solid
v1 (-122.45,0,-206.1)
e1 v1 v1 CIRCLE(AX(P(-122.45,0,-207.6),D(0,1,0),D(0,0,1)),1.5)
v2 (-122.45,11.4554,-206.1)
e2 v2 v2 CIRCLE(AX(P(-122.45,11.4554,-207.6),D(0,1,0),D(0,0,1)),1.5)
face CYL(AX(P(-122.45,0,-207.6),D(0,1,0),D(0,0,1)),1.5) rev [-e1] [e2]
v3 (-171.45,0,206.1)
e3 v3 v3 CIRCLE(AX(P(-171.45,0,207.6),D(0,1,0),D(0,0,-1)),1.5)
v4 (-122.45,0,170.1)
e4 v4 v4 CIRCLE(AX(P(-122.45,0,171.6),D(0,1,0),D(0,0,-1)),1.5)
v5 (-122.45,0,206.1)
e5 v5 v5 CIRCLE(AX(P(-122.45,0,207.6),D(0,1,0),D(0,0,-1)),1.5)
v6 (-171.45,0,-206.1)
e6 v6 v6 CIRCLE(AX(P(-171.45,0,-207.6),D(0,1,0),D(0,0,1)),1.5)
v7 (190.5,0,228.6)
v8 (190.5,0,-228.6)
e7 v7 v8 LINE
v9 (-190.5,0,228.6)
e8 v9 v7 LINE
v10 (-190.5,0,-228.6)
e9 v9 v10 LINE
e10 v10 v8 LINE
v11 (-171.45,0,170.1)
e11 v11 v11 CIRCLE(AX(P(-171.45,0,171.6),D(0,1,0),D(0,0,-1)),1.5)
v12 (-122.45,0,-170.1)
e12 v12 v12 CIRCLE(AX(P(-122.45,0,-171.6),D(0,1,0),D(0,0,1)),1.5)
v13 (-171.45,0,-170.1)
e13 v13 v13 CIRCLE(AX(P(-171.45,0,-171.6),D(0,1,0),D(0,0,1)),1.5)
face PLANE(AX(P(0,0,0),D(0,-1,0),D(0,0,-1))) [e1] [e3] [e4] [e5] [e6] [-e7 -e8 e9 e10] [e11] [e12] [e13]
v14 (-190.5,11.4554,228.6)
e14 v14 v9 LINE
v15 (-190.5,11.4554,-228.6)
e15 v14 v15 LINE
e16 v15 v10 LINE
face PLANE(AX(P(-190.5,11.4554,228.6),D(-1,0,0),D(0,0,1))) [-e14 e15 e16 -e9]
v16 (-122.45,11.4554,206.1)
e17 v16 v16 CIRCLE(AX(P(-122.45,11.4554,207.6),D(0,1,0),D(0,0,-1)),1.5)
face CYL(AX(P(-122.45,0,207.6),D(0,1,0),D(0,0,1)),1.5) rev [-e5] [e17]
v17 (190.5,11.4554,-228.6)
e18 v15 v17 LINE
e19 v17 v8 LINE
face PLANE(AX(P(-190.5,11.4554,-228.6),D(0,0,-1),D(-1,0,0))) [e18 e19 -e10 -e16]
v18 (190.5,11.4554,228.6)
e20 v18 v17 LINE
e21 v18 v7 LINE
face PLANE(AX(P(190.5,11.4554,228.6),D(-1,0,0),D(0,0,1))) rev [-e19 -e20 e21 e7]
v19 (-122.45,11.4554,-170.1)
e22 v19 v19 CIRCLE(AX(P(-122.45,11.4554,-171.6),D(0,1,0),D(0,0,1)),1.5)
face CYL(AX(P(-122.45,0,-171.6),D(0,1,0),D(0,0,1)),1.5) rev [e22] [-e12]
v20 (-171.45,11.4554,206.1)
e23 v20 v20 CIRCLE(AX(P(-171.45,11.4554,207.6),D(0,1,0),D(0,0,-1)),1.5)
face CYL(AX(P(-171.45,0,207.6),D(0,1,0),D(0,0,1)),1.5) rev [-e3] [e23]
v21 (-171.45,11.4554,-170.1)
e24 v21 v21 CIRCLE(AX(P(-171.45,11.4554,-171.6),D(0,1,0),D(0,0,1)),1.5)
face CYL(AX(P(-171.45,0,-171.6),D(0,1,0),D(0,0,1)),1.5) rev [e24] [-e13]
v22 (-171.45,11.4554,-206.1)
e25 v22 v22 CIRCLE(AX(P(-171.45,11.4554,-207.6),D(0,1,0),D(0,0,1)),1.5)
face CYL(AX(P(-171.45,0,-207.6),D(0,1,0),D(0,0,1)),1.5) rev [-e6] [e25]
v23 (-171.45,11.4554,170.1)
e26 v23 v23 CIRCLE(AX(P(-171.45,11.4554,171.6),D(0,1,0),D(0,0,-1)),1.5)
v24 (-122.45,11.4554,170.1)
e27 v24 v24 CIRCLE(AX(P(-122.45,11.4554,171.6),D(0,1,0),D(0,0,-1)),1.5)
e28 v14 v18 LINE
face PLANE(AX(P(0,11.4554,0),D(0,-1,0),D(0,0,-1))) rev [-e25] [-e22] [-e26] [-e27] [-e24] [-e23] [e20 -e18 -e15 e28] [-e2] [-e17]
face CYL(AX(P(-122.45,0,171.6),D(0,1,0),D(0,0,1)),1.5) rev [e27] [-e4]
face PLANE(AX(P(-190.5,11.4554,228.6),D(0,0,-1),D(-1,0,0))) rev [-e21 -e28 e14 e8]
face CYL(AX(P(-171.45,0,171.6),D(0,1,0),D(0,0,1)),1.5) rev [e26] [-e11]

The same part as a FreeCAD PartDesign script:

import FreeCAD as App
import Part
import Sketcher

V = App.Vector
Q = App.Units.Quantity


def add_polygon(sketch, points):
    """Adds a closed chain of lines whose ends are joined by coincident constraints."""
    first, n = sketch.GeometryCount, len(points)
    for a, b in zip(points, points[1:] + points[:1]):
        sketch.addGeometry(Part.LineSegment(App.Vector(*a, 0), App.Vector(*b, 0)), False)
    for i in range(n):
        sketch.addConstraint(Sketcher.Constraint("Coincident", first + i, 2, first + (i + 1) % n, 1))

doc = App.newDocument("Part")
params = doc.addObject("Spreadsheet::Sheet", "Params")
for row, (alias, value) in enumerate([
    ("sketch1_width", "15 in"),
    ("sketch1_height", "18 in"),
    ("pad1_length", "0.451 in"),
], start=1):
    params.set(f"A{row}", alias)
    params.set(f"B{row}", "=" + value)
    params.setAlias(f"B{row}", alias)

body = doc.addObject("PartDesign::Body", "Body")

# Sketch on XZ plane
sketch1 = body.newObject("Sketcher::SketchObject", "Sketch")
sketch1.AttachmentSupport = (doc.getObject("XZ_Plane"), [""])
sketch1.MapMode = "FlatFace"
add_polygon(sketch1, [(-190, -229), (-190, 229), (190, 229), (190, -229)])  # lines 0-3
sketch1.addConstraint(Sketcher.Constraint("Vertical", 0))
sketch1.addConstraint(Sketcher.Constraint("Horizontal", 1))
sketch1.addConstraint(Sketcher.Constraint("Vertical", 2))
sketch1.addConstraint(Sketcher.Constraint("Horizontal", 3))
sketch1.addConstraint(Sketcher.Constraint("Symmetric", 0, 2, 2, 2, -1, 1))
sketch1.addConstraint(Sketcher.Constraint("DistanceX", 1, 1, 1, 2, Q("15 in")))
sketch1.addConstraint(Sketcher.Constraint("DistanceY", 0, 1, 0, 2, Q("18 in")))
sketch1.setExpression("Constraints[9]", "Params.sketch1_width")
sketch1.setExpression("Constraints[10]", "Params.sketch1_height")
pad1 = body.newObject("PartDesign::Pad", "Pad")
pad1.Profile = sketch1
pad1.setExpression("Length", "Params.pad1_length")
pad1.Reversed = True

# Sketch on XZ plane
sketch2 = body.newObject("Sketcher::SketchObject", "Sketch001")
sketch2.AttachmentSupport = (doc.getObject("XZ_Plane"), [""])
sketch2.MapMode = "FlatFace"
sketch2.AttachmentOffset = App.Placement(V(0, 0, -0.451 * 25.4), App.Rotation())
sketch2.addGeometry(Part.Circle(V(-122.5, -207.6, 0), V(0, 0, 1), 1.5), False)
sketch2.addGeometry(Part.Circle(V(-171.4, -207.6, 0), V(0, 0, 1), 1.5), False)
sketch2.addGeometry(Part.Circle(V(-171.4, -171.6, 0), V(0, 0, 1), 1.5), False)
sketch2.addGeometry(Part.Circle(V(-122.5, -171.6, 0), V(0, 0, 1), 1.5), False)
sketch2.addGeometry(Part.Circle(V(-122.5, 171.6, 0), V(0, 0, 1), 1.5), False)
sketch2.addGeometry(Part.Circle(V(-171.4, 171.6, 0), V(0, 0, 1), 1.5), False)
sketch2.addGeometry(Part.Circle(V(-171.4, 207.6, 0), V(0, 0, 1), 1.5), False)
sketch2.addGeometry(Part.Circle(V(-122.5, 207.6, 0), V(0, 0, 1), 1.5), False)
sketch2.addConstraint(Sketcher.Constraint("Equal", 0, 1))
sketch2.addConstraint(Sketcher.Constraint("Equal", 1, 2))
sketch2.addConstraint(Sketcher.Constraint("Equal", 2, 3))
sketch2.addConstraint(Sketcher.Constraint("Equal", 3, 4))
sketch2.addConstraint(Sketcher.Constraint("Equal", 4, 5))
sketch2.addConstraint(Sketcher.Constraint("Equal", 5, 6))
sketch2.addConstraint(Sketcher.Constraint("Equal", 6, 7))
sketch2.addConstraint(Sketcher.Constraint("Symmetric", 3, 3, 4, 3, -1))
sketch2.addConstraint(Sketcher.Constraint("Symmetric", 2, 3, 5, 3, -1))
sketch2.addConstraint(Sketcher.Constraint("Symmetric", 1, 3, 6, 3, -1))
sketch2.addConstraint(Sketcher.Constraint("Symmetric", 0, 3, 7, 3, -1))
sketch2.addConstraint(Sketcher.Constraint("Horizontal", 0, 3, 1, 3))
sketch2.addConstraint(Sketcher.Constraint("Horizontal", 2, 3, 3, 3))
sketch2.addConstraint(Sketcher.Constraint("Vertical", 1, 3, 2, 3))
sketch2.addConstraint(Sketcher.Constraint("Vertical", 0, 3, 3, 3))
sketch2.addConstraint(Sketcher.Constraint("Diameter", 0, 3.0))
sketch2.addConstraint(Sketcher.Constraint("DistanceX", 1, 3, -1, 1, Q("6.75 in")))
sketch2.addConstraint(Sketcher.Constraint("DistanceX", 0, 3, -1, 1, 122.45))
sketch2.addConstraint(Sketcher.Constraint("DistanceY", 0, 3, -1, 1, 207.6))
sketch2.addConstraint(Sketcher.Constraint("DistanceY", 2, 3, -1, 1, 171.6))
pocket1 = body.newObject("PartDesign::Pocket", "Pocket")
pocket1.Profile = sketch2
pocket1.Type = "ThroughAll"
pocket1.Reversed = True

doc.recompute()
